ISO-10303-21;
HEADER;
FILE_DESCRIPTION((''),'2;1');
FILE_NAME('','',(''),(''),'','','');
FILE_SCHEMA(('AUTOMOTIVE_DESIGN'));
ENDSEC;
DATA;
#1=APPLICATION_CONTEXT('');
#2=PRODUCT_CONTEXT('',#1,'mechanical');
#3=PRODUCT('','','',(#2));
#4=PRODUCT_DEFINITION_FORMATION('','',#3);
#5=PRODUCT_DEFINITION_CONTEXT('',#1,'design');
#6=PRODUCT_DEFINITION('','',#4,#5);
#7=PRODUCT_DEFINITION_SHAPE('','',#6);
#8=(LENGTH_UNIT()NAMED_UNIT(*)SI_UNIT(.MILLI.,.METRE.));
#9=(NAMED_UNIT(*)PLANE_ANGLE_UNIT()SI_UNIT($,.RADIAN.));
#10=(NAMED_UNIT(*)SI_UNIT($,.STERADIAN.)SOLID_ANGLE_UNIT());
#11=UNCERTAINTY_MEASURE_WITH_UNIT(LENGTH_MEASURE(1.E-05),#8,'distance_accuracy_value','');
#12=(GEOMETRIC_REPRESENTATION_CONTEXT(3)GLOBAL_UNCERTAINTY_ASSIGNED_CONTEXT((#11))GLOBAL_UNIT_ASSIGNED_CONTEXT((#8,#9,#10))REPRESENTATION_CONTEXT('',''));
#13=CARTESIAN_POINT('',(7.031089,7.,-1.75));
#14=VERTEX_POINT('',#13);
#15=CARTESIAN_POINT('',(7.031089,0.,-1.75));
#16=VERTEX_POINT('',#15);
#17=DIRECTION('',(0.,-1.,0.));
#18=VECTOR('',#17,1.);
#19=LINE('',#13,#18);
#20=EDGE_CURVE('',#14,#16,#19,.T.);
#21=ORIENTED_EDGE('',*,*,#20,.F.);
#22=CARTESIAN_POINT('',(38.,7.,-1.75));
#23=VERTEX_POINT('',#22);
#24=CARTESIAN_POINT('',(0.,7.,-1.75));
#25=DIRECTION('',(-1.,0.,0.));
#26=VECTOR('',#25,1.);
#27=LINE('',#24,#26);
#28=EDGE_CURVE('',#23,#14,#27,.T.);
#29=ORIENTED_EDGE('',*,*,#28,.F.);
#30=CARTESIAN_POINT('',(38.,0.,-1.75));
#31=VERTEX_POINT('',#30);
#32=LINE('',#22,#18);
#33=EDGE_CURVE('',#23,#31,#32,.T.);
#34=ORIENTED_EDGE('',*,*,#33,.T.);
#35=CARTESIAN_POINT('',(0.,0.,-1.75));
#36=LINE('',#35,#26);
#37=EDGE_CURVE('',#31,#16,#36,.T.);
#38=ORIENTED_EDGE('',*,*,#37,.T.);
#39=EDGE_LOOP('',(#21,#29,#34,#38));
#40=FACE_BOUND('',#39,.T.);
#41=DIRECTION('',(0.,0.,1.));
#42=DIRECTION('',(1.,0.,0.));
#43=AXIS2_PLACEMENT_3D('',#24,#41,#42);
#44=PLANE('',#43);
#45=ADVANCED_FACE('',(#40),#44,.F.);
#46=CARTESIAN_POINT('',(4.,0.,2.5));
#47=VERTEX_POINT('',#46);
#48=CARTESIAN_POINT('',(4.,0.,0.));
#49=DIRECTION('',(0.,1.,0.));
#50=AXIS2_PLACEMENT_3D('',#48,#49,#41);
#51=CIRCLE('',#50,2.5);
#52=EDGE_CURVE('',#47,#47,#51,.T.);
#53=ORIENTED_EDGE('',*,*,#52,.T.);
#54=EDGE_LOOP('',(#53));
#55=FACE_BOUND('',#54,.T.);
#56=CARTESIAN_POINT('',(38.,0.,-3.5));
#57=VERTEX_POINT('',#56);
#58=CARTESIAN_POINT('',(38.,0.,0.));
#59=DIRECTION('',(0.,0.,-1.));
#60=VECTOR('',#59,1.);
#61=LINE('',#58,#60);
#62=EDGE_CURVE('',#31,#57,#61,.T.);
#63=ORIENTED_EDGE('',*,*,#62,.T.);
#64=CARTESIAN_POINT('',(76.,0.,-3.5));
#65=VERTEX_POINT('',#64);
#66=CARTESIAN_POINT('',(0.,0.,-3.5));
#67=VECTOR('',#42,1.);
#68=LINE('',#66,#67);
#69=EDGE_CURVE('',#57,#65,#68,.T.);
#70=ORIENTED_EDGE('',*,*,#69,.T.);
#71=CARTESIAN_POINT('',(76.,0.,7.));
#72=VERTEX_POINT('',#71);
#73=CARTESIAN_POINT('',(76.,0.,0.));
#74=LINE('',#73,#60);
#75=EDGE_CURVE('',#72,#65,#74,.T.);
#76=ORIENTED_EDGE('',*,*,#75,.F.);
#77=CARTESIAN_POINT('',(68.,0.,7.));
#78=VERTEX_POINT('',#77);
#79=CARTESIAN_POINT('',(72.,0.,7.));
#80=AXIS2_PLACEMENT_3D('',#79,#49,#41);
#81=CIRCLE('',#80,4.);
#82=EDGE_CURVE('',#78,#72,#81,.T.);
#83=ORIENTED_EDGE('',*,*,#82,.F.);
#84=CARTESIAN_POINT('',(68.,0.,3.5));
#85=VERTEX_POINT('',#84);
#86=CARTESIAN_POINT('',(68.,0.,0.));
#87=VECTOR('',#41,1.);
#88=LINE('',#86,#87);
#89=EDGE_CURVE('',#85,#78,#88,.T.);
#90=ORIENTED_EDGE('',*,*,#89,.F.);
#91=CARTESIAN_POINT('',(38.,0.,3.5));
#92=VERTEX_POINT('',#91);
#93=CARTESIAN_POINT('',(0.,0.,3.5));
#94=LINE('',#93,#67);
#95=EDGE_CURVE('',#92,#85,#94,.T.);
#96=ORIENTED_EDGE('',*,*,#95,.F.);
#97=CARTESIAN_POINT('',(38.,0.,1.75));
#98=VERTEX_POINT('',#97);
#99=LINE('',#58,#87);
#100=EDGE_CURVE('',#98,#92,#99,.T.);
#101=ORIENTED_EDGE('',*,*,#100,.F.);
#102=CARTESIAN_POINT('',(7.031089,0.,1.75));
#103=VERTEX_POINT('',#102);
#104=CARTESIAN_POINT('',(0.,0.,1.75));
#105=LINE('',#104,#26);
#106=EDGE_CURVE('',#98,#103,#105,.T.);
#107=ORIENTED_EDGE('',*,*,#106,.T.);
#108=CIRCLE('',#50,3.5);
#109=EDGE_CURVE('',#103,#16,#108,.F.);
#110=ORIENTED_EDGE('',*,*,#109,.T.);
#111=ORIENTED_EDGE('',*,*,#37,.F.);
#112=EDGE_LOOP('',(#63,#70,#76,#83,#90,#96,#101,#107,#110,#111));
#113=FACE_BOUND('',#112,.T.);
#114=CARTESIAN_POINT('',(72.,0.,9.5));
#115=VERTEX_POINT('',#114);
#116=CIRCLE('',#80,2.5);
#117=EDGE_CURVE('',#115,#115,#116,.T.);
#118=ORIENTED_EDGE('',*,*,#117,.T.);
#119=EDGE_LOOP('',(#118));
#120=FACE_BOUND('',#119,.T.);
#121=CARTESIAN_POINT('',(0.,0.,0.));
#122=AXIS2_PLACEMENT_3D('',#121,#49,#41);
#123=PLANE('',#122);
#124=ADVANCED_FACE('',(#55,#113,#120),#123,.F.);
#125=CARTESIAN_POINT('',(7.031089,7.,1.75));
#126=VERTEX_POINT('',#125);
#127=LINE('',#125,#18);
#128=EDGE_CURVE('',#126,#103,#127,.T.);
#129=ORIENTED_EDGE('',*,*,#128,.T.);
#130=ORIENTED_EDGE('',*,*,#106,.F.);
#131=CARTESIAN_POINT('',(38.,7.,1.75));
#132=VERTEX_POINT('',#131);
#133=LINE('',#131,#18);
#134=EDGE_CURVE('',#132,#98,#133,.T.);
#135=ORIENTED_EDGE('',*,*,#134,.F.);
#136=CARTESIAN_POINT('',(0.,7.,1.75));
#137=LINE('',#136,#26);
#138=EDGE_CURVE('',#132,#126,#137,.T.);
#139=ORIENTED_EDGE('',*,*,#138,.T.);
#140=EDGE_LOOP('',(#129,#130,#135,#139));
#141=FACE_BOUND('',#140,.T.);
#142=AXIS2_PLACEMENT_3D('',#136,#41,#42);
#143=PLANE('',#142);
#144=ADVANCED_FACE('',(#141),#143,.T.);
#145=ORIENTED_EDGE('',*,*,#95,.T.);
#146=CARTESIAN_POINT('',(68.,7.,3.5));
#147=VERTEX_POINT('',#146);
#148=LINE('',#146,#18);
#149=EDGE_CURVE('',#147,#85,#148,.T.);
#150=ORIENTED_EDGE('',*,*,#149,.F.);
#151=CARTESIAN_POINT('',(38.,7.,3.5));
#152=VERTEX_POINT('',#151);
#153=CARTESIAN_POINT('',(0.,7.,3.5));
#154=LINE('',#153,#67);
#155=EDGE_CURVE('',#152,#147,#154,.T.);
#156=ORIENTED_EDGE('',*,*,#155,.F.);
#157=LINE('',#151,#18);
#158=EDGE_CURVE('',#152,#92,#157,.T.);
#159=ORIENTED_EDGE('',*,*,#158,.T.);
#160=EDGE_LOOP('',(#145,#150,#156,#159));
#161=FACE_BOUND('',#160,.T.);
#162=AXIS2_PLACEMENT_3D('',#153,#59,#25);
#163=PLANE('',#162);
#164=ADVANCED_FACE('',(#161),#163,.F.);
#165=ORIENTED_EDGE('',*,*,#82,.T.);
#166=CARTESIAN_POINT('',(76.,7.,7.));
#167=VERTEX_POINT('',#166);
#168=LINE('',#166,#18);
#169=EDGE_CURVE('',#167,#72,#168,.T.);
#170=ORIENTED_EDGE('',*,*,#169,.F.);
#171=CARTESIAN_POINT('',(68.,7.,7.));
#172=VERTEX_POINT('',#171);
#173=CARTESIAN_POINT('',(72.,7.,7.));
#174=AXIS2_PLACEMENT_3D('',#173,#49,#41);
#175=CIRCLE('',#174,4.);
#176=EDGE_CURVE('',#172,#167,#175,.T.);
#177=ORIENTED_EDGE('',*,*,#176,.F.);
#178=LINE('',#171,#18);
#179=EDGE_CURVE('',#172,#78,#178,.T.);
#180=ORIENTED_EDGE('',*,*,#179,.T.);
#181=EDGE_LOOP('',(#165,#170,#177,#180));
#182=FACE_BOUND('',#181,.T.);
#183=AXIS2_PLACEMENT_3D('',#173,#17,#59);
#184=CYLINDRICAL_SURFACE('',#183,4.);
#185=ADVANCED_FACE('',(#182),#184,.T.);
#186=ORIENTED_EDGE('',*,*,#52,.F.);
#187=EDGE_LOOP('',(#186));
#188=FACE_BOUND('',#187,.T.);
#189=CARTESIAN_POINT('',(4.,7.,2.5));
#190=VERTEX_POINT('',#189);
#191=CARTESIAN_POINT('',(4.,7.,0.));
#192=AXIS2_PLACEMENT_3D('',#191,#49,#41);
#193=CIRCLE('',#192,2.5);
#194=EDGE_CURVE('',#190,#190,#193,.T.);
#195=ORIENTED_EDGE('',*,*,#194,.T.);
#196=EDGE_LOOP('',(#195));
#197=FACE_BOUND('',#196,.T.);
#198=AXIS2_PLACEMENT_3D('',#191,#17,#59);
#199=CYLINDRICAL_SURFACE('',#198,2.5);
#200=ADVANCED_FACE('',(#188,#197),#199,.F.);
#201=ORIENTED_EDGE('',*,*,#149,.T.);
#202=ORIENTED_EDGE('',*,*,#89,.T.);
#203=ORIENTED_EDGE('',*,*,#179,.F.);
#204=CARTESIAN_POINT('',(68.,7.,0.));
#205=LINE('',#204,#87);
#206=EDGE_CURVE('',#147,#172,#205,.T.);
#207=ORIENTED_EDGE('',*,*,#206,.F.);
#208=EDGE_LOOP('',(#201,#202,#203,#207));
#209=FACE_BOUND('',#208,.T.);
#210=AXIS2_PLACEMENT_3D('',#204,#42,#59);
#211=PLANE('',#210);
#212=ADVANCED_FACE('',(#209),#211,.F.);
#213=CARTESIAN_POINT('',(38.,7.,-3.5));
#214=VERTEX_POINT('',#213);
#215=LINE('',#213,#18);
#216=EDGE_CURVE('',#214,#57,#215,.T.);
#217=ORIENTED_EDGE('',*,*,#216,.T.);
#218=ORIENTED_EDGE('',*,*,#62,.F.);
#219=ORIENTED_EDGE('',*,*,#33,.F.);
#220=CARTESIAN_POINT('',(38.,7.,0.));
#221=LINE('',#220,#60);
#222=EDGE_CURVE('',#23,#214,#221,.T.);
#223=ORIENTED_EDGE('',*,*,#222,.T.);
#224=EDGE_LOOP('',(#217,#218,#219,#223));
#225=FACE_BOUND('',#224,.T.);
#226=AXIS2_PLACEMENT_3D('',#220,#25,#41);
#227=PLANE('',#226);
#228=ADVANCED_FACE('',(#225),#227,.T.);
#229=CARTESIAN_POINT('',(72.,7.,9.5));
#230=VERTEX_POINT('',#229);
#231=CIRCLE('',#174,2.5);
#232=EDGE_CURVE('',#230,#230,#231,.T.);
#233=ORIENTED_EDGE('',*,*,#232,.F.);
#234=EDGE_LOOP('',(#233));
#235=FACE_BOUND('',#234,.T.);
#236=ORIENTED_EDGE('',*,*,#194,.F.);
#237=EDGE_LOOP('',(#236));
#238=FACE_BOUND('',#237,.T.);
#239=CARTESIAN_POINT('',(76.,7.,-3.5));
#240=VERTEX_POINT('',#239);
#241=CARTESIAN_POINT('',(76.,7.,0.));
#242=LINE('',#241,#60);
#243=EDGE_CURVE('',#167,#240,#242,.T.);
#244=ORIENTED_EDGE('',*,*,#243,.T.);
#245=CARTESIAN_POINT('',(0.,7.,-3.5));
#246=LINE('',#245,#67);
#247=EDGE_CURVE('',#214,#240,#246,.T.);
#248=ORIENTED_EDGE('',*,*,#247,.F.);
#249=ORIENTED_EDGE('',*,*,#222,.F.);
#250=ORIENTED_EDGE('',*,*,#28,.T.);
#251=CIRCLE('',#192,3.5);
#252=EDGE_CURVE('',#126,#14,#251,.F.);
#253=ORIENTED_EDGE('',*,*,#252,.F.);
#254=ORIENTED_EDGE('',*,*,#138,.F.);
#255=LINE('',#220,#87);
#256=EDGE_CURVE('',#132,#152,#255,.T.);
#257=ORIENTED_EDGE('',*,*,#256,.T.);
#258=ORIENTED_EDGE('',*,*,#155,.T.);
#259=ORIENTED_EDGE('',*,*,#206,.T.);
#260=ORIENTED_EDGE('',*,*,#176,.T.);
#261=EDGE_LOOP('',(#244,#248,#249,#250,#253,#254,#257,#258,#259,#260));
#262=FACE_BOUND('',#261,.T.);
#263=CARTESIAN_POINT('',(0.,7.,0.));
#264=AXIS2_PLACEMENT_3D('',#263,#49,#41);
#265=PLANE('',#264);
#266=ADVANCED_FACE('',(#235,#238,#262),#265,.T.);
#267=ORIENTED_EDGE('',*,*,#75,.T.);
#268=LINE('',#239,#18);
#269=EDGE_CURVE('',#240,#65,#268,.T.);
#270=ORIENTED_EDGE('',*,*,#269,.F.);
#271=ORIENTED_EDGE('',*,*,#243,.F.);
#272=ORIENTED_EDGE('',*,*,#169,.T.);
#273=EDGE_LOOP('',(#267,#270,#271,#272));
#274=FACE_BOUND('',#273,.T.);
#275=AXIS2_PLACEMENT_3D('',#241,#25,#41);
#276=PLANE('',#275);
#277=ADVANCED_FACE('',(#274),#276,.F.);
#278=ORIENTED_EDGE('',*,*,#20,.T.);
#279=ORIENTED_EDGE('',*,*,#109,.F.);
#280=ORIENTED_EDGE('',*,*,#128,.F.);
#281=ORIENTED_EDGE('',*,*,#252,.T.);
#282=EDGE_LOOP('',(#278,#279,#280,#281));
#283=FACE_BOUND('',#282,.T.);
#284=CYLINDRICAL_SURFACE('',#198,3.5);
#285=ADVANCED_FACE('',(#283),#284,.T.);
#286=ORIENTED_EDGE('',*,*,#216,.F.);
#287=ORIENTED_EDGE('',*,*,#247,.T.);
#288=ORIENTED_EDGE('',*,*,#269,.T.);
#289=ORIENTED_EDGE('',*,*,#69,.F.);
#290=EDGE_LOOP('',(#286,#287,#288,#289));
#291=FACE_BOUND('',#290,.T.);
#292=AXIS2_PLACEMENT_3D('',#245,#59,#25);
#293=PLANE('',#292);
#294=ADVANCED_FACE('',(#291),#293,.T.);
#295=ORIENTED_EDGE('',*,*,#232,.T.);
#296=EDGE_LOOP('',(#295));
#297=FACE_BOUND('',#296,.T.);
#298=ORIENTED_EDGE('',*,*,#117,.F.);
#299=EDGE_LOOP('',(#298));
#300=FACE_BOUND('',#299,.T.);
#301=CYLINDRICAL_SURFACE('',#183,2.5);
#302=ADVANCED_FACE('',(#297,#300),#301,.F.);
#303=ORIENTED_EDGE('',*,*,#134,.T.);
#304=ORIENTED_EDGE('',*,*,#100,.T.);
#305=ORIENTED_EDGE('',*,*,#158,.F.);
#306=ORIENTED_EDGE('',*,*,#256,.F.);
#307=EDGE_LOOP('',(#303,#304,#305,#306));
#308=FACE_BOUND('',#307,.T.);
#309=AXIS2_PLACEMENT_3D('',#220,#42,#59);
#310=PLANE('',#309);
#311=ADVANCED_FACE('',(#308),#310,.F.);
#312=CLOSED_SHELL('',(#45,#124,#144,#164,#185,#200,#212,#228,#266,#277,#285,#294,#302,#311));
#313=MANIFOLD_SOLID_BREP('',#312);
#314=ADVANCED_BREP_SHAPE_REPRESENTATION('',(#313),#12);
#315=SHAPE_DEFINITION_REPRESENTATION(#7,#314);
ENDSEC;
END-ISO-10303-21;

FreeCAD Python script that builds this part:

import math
import FreeCAD as App
import Part
import Sketcher
from FreeCAD import Vector
Q = App.Units.Quantity

doc = App.newDocument("Part")
body = doc.addObject("PartDesign::Body", "Body")

# Sketch on XZ plane
sketch1 = body.newObject("Sketcher::SketchObject", "Sketch")
sketch1.AttachmentSupport = (doc.getObject("XZ_Plane"), [""])
sketch1.MapMode = "FlatFace"
sketch1.addGeometry([
    Part.LineSegment(Vector(38, -3.5, 0), Vector(38, -1.75, 0)),  # 0
    Part.LineSegment(Vector(38, -1.75, 0), Vector(7.031089, -1.75, 0)),  # 1
    Part.ArcOfCircle(Part.Circle(Vector(4, 0, 0), Vector(0, 0, 1), 3.5), math.radians(30), math.radians(330)),  # 2
    Part.LineSegment(Vector(7.031089, 1.75, 0), Vector(38, 1.75, 0)),  # 3
    Part.LineSegment(Vector(38, 1.75, 0), Vector(38, 3.5, 0)),  # 4
    Part.LineSegment(Vector(38, 3.5, 0), Vector(68, 3.5, 0)),  # 5
    Part.LineSegment(Vector(68, 3.5, 0), Vector(68, 7, 0)),  # 6
    Part.ArcOfCircle(Part.Circle(Vector(72, 7, 0), Vector(0, 0, 1), 4), math.radians(0), math.radians(180)),  # 7
    Part.LineSegment(Vector(76, 7, 0), Vector(76, -3.5, 0)),  # 8
    Part.LineSegment(Vector(76, -3.5, 0), Vector(38, -3.5, 0)),  # 9
    Part.Circle(Vector(72, 7, 0), Vector(0, 0, 1), 2.5),  # 10
    Part.Circle(Vector(4, 0, 0), Vector(0, 0, 1), 2.5),  # 11
], False)
sketch1.addConstraint([
    Sketcher.Constraint("Coincident", 0, 2, 1, 1),
    Sketcher.Constraint("Coincident", 1, 2, 2, 2),
    Sketcher.Constraint("Coincident", 2, 1, 3, 1),
    Sketcher.Constraint("Coincident", 3, 2, 4, 1),
    Sketcher.Constraint("Coincident", 4, 2, 5, 1),
    Sketcher.Constraint("Coincident", 5, 2, 6, 1),
    Sketcher.Constraint("Tangent", 6, 2, 7, 2),
    Sketcher.Constraint("Tangent", 7, 1, 8, 1),
    Sketcher.Constraint("Coincident", 8, 2, 9, 1),
    Sketcher.Constraint("Coincident", 9, 2, 0, 1),
    Sketcher.Constraint("Vertical", 0),
    Sketcher.Constraint("Horizontal", 1),
    Sketcher.Constraint("Horizontal", 3),
    Sketcher.Constraint("Vertical", 4),
    Sketcher.Constraint("Horizontal", 5),
    Sketcher.Constraint("Vertical", 6),
    Sketcher.Constraint("Vertical", 8),
    Sketcher.Constraint("Horizontal", 9),
    Sketcher.Constraint("Coincident", 10, 3, 7, 3),
    Sketcher.Constraint("Coincident", 11, 3, 2, 3),
    Sketcher.Constraint("Equal", 10, 11),
    Sketcher.Constraint("Symmetric", 1, 2, 2, 1, -1),
    Sketcher.Constraint("Symmetric", 4, 2, 9, 2, -1),
    Sketcher.Constraint("Diameter", 10, Q("5 mm")),
    Sketcher.Constraint("Radius", 7, Q("4 mm")),
    Sketcher.Constraint("Radius", 2, Q("3.5 mm")),
    Sketcher.Constraint("DistanceX", 5, 1, 5, 2, Q("30 mm")),
    Sketcher.Constraint("DistanceY", 6, 1, 6, 2, Q("3.5 mm")),
    Sketcher.Constraint("DistanceY", 8, 2, 8, 1, Q("10.5 mm")),
    Sketcher.Constraint("DistanceX", -1, 1, 2, 3, Q("4 mm")),
    Sketcher.Constraint("DistanceX", -1, 1, 7, 3, Q("72 mm")),
    Sketcher.Constraint("DistanceY", 0, 1, 0, 2, Q("1.75 mm")),
])
pad1 = body.newObject("PartDesign::Pad", "Pad")
pad1.Profile = sketch1
pad1.Length = 7
pad1.Reversed = True

doc.recompute()
